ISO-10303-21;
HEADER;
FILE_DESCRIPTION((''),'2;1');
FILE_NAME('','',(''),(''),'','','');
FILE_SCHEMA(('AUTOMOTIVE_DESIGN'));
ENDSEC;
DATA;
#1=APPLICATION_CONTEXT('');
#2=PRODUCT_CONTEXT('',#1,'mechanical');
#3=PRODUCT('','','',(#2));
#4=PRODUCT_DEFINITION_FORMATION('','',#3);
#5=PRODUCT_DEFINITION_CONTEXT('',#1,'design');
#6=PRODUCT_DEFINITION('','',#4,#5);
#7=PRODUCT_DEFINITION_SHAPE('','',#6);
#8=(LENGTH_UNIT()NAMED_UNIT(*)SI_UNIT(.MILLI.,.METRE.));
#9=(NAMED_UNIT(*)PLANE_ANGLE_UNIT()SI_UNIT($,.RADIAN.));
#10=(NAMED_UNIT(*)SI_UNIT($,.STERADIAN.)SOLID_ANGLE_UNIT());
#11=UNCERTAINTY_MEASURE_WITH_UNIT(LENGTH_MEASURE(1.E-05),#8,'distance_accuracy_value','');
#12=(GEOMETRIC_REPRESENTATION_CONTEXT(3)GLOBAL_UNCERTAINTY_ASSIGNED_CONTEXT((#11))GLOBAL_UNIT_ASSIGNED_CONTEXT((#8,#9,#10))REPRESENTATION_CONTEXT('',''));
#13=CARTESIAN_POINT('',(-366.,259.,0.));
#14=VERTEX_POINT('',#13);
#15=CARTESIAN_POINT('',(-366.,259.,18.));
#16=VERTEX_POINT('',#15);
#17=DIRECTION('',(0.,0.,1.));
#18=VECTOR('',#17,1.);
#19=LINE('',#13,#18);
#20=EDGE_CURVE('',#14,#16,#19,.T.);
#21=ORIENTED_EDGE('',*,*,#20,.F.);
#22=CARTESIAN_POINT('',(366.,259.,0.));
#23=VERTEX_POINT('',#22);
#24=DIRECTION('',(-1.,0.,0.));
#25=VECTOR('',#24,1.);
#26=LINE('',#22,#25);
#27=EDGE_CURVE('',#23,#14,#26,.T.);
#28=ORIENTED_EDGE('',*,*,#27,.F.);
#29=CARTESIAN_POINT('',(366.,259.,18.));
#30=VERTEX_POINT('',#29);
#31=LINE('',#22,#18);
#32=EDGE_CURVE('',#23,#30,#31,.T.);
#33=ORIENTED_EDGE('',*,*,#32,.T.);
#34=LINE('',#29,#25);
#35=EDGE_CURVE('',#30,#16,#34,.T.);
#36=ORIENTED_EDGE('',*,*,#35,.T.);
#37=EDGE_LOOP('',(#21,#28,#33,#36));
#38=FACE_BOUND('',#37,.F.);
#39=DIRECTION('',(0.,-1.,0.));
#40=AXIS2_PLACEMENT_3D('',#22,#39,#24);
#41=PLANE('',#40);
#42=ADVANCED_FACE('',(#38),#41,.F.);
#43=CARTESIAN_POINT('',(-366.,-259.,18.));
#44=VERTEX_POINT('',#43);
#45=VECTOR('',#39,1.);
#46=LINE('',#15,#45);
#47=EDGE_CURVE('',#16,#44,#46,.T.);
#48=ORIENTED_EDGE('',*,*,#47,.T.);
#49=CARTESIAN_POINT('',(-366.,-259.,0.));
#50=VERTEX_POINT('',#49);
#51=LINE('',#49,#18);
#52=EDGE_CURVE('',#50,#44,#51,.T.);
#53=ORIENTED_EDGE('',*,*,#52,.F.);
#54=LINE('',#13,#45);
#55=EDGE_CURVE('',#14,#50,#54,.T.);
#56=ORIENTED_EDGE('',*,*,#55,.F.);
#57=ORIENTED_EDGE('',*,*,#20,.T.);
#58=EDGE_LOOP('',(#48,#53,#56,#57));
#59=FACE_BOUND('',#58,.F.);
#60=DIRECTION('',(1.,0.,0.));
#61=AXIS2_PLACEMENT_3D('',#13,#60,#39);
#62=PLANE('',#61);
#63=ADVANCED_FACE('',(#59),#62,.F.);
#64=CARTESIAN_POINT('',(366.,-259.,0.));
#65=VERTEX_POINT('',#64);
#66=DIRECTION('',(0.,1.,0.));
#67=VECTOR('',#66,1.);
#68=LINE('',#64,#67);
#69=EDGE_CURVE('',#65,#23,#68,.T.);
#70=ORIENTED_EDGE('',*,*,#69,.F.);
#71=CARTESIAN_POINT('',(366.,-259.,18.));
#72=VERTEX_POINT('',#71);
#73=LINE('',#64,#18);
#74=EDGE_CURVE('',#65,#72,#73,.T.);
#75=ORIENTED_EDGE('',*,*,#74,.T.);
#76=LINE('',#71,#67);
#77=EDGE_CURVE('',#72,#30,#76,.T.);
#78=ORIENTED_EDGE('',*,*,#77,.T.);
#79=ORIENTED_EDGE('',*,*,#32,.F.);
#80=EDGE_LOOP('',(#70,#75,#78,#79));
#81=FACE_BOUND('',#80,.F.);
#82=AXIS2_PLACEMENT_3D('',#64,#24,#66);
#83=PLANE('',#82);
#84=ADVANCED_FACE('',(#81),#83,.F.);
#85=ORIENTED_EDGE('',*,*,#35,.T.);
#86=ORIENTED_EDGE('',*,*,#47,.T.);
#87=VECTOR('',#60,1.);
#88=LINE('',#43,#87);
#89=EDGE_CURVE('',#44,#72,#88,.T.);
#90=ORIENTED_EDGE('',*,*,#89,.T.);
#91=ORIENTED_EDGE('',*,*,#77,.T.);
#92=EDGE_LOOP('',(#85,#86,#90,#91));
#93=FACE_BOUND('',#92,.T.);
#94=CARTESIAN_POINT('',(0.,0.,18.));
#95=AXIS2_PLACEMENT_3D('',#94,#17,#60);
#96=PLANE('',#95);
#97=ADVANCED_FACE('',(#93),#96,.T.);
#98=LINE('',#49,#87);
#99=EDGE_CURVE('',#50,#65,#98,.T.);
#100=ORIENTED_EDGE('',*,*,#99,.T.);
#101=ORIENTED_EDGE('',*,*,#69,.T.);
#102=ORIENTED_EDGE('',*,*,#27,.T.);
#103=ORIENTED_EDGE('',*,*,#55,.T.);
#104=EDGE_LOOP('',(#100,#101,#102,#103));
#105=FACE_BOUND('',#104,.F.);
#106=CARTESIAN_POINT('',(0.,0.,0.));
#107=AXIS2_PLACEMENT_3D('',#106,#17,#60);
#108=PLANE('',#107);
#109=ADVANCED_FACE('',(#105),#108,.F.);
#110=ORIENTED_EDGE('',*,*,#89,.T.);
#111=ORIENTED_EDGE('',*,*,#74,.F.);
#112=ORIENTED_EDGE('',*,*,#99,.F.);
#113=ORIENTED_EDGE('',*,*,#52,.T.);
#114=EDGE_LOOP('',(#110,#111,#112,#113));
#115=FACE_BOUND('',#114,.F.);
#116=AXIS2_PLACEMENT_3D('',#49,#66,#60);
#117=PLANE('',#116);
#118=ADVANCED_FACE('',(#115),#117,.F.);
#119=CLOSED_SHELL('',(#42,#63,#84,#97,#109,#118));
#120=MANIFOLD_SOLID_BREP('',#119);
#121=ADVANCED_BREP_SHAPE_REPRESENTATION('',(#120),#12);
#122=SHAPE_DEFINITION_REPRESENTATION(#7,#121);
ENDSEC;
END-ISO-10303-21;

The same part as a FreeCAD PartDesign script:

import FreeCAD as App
import Part
import Sketcher
from FreeCAD import Vector
Q = App.Units.Quantity


def add_polygon(sketch, points):
    """Adds a closed chain of lines whose ends are joined by coincident constraints."""
    first, n = sketch.GeometryCount, len(points)
    for a, b in zip(points, points[1:] + points[:1]):
        sketch.addGeometry(Part.LineSegment(App.Vector(*a, 0), App.Vector(*b, 0)), False)
    for i in range(n):
        sketch.addConstraint(Sketcher.Constraint("Coincident", first + i, 2, first + (i + 1) % n, 1))

doc = App.newDocument("Part")
body = doc.addObject("PartDesign::Body", "Body")

# Sketch on XY plane
sketch1 = doc.addObject("Sketcher::SketchObject", "Sketch")
body.addObject(sketch1)
sketch1.AttachmentSupport = (doc.XY_Plane, [""])
sketch1.MapMode = "FlatFace"
add_polygon(sketch1, [(-366, 259), (-366, -259), (366, -259), (366, 259)])  # lines 0-3
sketch1.addConstraint([
    Sketcher.Constraint("Vertical", 0),
    Sketcher.Constraint("Horizontal", 1),
    Sketcher.Constraint("Vertical", 2),
    Sketcher.Constraint("Horizontal", 3),
    Sketcher.Constraint("Symmetric", 0, 2, 2, 2, -1, 1),
    Sketcher.Constraint("DistanceX", 1, 1, 1, 2, Q("732 mm")),
    Sketcher.Constraint("DistanceY", 0, 2, 0, 1, Q("518 mm")),
])
pad1 = doc.addObject("PartDesign::Pad", "Pad")
body.addObject(pad1)
pad1.Profile = sketch1
pad1.Length = 18

doc.recompute()
